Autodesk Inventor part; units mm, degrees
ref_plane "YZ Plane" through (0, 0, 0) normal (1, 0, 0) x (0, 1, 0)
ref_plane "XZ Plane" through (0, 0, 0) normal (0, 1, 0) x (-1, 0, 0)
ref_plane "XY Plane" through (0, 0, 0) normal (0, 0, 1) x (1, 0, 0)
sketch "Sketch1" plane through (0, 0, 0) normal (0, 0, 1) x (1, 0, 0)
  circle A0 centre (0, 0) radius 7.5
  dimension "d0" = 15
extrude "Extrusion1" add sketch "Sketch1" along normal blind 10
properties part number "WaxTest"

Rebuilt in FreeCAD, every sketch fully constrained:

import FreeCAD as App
import Part
import Sketcher

V = App.Vector
Q = App.Units.Quantity

doc = App.newDocument("Part")
body = doc.addObject("PartDesign::Body", "Body")

sketch1 = body.newObject("Sketcher::SketchObject", "Sketch")
sketch1.AttachmentSupport = (doc.getObject("XY_Plane"), [""])
sketch1.MapMode = "FlatFace"
sketch1.addGeometry(Part.Circle(V(0, 0, 0), V(0, 0, 1), 8), False)
sketch1.addConstraint([
    Sketcher.Constraint("Coincident", 0, 3, -1, 1),
    Sketcher.Constraint("Diameter", 0, Q("15 mm")),
])
pad1 = body.newObject("PartDesign::Pad", "Pad")
pad1.Profile = sketch1
pad1.Length = 10

doc.recompute()
